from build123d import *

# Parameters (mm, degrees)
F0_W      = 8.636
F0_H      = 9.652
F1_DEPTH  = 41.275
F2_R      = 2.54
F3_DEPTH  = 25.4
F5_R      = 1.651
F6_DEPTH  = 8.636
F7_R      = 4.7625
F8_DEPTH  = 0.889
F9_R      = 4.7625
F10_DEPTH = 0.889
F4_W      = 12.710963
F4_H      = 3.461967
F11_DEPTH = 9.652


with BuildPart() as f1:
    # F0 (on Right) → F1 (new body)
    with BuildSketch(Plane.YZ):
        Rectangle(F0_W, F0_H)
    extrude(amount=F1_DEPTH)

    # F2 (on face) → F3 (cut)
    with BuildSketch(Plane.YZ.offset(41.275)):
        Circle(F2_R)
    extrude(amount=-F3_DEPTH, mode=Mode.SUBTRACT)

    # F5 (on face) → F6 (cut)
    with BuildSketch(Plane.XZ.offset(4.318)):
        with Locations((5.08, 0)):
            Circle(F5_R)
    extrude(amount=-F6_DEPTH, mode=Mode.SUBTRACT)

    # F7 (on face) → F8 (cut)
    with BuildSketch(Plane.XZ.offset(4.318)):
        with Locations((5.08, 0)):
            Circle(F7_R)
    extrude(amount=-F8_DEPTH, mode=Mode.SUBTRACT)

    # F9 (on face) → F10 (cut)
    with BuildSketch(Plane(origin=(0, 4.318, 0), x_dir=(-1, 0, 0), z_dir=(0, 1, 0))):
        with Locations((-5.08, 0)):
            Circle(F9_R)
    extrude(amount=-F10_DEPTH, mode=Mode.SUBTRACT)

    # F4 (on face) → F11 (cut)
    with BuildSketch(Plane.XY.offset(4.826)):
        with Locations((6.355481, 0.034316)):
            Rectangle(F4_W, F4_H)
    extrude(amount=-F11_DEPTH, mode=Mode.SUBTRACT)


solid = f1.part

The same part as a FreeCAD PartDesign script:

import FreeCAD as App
import Part
import Sketcher

V = App.Vector
Q = App.Units.Quantity


def add_polygon(sketch, points):
    """Adds a closed chain of lines whose ends are joined by coincident constraints."""
    first, n = sketch.GeometryCount, len(points)
    for a, b in zip(points, points[1:] + points[:1]):
        sketch.addGeometry(Part.LineSegment(App.Vector(*a, 0), App.Vector(*b, 0)), False)
    for i in range(n):
        sketch.addConstraint(Sketcher.Constraint("Coincident", first + i, 2, first + (i + 1) % n, 1))

doc = App.newDocument("Part")
body = doc.addObject("PartDesign::Body", "Body")

sketch1 = doc.addObject("Sketcher::SketchObject", "Sketch")
body.addObject(sketch1)
sketch1.AttachmentSupport = (doc.YZ_Plane, [""])
sketch1.MapMode = "FlatFace"
add_polygon(sketch1, [(-4, 5), (-4, -5), (4, -5), (4, 5)])
sketch1.addConstraint(Sketcher.Constraint("Vertical", 0))
sketch1.addConstraint(Sketcher.Constraint("Horizontal", 1))
sketch1.addConstraint(Sketcher.Constraint("Vertical", 2))
sketch1.addConstraint(Sketcher.Constraint("Horizontal", 3))
sketch1.addConstraint(Sketcher.Constraint("Symmetric", 0, 2, 2, 2, -1, 1))
sketch1.addConstraint(Sketcher.Constraint("DistanceX", 1, 1, 1, 2, Q("0.34 in")))
sketch1.addConstraint(Sketcher.Constraint("DistanceY", 0, 2, 0, 1, Q("0.38 in")))
pad1 = doc.addObject("PartDesign::Pad", "Pad")
body.addObject(pad1)
pad1.Profile = sketch1
pad1.Length = Q("1.625 in")

sketch2 = doc.addObject("Sketcher::SketchObject", "Sketch001")
body.addObject(sketch2)
sketch2.AttachmentSupport = (doc.YZ_Plane, [""])
sketch2.MapMode = "FlatFace"
sketch2.AttachmentOffset = App.Placement(V(0, 0, 1.625 * 25.4), App.Rotation())
sketch2.addGeometry(Part.Circle(V(0, 0, 0), V(0, 0, 1), 2.5), False)
sketch2.addConstraint(Sketcher.Constraint("Coincident", 0, 3, -1, 1))
sketch2.addConstraint(Sketcher.Constraint("Diameter", 0, Q("0.2 in")))
pocket1 = doc.addObject("PartDesign::Pocket", "Pocket")
body.addObject(pocket1)
pocket1.Profile = sketch2
pocket1.Length = Q("1 in")

sketch3 = doc.addObject("Sketcher::SketchObject", "Sketch002")
body.addObject(sketch3)
sketch3.AttachmentSupport = (doc.XZ_Plane, [""])
sketch3.MapMode = "FlatFace"
sketch3.AttachmentOffset = App.Placement(V(0, 0, 0.17 * 25.4), App.Rotation())
sketch3.addGeometry(Part.Circle(V(5.1, 0, 0), V(0, 0, 1), 1.7), False)
sketch3.addConstraint(Sketcher.Constraint("PointOnObject", 0, 3, -1))
sketch3.addConstraint(Sketcher.Constraint("Diameter", 0, Q("0.13 in")))
sketch3.addConstraint(Sketcher.Constraint("DistanceX", -1, 1, 0, 3, Q("0.2 in")))
pocket2 = doc.addObject("PartDesign::Pocket", "Pocket001")
body.addObject(pocket2)
pocket2.Profile = sketch3
pocket2.Length = Q("0.34 in")

sketch4 = doc.addObject("Sketcher::SketchObject", "Sketch003")
body.addObject(sketch4)
sketch4.AttachmentSupport = (doc.XZ_Plane, [""])
sketch4.MapMode = "FlatFace"
sketch4.AttachmentOffset = App.Placement(V(0, 0, 0.17 * 25.4), App.Rotation())
sketch4.addGeometry(Part.Circle(V(5.1, 0, 0), V(0, 0, 1), 4.8), False)
sketch4.addConstraint(Sketcher.Constraint("PointOnObject", 0, 3, -1))
sketch4.addConstraint(Sketcher.Constraint("Diameter", 0, Q("0.375 in")))
sketch4.addConstraint(Sketcher.Constraint("DistanceX", -1, 1, 0, 3, Q("0.2 in")))
pocket3 = doc.addObject("PartDesign::Pocket", "Pocket002")
body.addObject(pocket3)
pocket3.Profile = sketch4
pocket3.Length = Q("0.035 in")

sketch5 = doc.addObject("Sketcher::SketchObject", "Sketch004")
body.addObject(sketch5)
sketch5.AttachmentSupport = (doc.XZ_Plane, [""])
sketch5.MapMode = "FlatFace"
sketch5.AttachmentOffset = App.Placement(V(0, 0, -0.17 * 25.4), App.Rotation())
sketch5.addGeometry(Part.Circle(V(5.1, 0, 0), V(0, 0, 1), 4.8), False)
sketch5.addConstraint(Sketcher.Constraint("PointOnObject", 0, 3, -1))
sketch5.addConstraint(Sketcher.Constraint("Diameter", 0, Q("0.375 in")))
sketch5.addConstraint(Sketcher.Constraint("DistanceX", -1, 1, 0, 3, Q("0.2 in")))
pocket4 = doc.addObject("PartDesign::Pocket", "Pocket003")
body.addObject(pocket4)
pocket4.Profile = sketch5
pocket4.Length = Q("0.035 in")
pocket4.Reversed = True

sketch6 = doc.addObject("Sketcher::SketchObject", "Sketch005")
body.addObject(sketch6)
sketch6.AttachmentSupport = (doc.XY_Plane, [""])
sketch6.MapMode = "FlatFace"
sketch6.AttachmentOffset = App.Placement(V(0, 0, 0.19 * 25.4), App.Rotation())
add_polygon(sketch6, [(0, 1.8), (0, -1.7), (12.7, -1.7), (12.7, 1.8)])
sketch6.addConstraint(Sketcher.Constraint("Vertical", 0))
sketch6.addConstraint(Sketcher.Constraint("Horizontal", 1))
sketch6.addConstraint(Sketcher.Constraint("Vertical", 2))
sketch6.addConstraint(Sketcher.Constraint("Horizontal", 3))
sketch6.addConstraint(Sketcher.Constraint("PointOnObject", 0, 2, -2))
sketch6.addConstraint(Sketcher.Constraint("DistanceY", -1, 1, 2, 2, Q("0.0695 in")))
sketch6.addConstraint(Sketcher.Constraint("DistanceX", 1, 1, 1, 2, Q("12.710963 mm")))
sketch6.addConstraint(Sketcher.Constraint("DistanceY", 0, 2, 0, 1, Q("3.461967 mm")))
pocket5 = doc.addObject("PartDesign::Pocket", "Pocket004")
body.addObject(pocket5)
pocket5.Profile = sketch6
pocket5.Length = Q("0.38 in")

doc.recompute()
